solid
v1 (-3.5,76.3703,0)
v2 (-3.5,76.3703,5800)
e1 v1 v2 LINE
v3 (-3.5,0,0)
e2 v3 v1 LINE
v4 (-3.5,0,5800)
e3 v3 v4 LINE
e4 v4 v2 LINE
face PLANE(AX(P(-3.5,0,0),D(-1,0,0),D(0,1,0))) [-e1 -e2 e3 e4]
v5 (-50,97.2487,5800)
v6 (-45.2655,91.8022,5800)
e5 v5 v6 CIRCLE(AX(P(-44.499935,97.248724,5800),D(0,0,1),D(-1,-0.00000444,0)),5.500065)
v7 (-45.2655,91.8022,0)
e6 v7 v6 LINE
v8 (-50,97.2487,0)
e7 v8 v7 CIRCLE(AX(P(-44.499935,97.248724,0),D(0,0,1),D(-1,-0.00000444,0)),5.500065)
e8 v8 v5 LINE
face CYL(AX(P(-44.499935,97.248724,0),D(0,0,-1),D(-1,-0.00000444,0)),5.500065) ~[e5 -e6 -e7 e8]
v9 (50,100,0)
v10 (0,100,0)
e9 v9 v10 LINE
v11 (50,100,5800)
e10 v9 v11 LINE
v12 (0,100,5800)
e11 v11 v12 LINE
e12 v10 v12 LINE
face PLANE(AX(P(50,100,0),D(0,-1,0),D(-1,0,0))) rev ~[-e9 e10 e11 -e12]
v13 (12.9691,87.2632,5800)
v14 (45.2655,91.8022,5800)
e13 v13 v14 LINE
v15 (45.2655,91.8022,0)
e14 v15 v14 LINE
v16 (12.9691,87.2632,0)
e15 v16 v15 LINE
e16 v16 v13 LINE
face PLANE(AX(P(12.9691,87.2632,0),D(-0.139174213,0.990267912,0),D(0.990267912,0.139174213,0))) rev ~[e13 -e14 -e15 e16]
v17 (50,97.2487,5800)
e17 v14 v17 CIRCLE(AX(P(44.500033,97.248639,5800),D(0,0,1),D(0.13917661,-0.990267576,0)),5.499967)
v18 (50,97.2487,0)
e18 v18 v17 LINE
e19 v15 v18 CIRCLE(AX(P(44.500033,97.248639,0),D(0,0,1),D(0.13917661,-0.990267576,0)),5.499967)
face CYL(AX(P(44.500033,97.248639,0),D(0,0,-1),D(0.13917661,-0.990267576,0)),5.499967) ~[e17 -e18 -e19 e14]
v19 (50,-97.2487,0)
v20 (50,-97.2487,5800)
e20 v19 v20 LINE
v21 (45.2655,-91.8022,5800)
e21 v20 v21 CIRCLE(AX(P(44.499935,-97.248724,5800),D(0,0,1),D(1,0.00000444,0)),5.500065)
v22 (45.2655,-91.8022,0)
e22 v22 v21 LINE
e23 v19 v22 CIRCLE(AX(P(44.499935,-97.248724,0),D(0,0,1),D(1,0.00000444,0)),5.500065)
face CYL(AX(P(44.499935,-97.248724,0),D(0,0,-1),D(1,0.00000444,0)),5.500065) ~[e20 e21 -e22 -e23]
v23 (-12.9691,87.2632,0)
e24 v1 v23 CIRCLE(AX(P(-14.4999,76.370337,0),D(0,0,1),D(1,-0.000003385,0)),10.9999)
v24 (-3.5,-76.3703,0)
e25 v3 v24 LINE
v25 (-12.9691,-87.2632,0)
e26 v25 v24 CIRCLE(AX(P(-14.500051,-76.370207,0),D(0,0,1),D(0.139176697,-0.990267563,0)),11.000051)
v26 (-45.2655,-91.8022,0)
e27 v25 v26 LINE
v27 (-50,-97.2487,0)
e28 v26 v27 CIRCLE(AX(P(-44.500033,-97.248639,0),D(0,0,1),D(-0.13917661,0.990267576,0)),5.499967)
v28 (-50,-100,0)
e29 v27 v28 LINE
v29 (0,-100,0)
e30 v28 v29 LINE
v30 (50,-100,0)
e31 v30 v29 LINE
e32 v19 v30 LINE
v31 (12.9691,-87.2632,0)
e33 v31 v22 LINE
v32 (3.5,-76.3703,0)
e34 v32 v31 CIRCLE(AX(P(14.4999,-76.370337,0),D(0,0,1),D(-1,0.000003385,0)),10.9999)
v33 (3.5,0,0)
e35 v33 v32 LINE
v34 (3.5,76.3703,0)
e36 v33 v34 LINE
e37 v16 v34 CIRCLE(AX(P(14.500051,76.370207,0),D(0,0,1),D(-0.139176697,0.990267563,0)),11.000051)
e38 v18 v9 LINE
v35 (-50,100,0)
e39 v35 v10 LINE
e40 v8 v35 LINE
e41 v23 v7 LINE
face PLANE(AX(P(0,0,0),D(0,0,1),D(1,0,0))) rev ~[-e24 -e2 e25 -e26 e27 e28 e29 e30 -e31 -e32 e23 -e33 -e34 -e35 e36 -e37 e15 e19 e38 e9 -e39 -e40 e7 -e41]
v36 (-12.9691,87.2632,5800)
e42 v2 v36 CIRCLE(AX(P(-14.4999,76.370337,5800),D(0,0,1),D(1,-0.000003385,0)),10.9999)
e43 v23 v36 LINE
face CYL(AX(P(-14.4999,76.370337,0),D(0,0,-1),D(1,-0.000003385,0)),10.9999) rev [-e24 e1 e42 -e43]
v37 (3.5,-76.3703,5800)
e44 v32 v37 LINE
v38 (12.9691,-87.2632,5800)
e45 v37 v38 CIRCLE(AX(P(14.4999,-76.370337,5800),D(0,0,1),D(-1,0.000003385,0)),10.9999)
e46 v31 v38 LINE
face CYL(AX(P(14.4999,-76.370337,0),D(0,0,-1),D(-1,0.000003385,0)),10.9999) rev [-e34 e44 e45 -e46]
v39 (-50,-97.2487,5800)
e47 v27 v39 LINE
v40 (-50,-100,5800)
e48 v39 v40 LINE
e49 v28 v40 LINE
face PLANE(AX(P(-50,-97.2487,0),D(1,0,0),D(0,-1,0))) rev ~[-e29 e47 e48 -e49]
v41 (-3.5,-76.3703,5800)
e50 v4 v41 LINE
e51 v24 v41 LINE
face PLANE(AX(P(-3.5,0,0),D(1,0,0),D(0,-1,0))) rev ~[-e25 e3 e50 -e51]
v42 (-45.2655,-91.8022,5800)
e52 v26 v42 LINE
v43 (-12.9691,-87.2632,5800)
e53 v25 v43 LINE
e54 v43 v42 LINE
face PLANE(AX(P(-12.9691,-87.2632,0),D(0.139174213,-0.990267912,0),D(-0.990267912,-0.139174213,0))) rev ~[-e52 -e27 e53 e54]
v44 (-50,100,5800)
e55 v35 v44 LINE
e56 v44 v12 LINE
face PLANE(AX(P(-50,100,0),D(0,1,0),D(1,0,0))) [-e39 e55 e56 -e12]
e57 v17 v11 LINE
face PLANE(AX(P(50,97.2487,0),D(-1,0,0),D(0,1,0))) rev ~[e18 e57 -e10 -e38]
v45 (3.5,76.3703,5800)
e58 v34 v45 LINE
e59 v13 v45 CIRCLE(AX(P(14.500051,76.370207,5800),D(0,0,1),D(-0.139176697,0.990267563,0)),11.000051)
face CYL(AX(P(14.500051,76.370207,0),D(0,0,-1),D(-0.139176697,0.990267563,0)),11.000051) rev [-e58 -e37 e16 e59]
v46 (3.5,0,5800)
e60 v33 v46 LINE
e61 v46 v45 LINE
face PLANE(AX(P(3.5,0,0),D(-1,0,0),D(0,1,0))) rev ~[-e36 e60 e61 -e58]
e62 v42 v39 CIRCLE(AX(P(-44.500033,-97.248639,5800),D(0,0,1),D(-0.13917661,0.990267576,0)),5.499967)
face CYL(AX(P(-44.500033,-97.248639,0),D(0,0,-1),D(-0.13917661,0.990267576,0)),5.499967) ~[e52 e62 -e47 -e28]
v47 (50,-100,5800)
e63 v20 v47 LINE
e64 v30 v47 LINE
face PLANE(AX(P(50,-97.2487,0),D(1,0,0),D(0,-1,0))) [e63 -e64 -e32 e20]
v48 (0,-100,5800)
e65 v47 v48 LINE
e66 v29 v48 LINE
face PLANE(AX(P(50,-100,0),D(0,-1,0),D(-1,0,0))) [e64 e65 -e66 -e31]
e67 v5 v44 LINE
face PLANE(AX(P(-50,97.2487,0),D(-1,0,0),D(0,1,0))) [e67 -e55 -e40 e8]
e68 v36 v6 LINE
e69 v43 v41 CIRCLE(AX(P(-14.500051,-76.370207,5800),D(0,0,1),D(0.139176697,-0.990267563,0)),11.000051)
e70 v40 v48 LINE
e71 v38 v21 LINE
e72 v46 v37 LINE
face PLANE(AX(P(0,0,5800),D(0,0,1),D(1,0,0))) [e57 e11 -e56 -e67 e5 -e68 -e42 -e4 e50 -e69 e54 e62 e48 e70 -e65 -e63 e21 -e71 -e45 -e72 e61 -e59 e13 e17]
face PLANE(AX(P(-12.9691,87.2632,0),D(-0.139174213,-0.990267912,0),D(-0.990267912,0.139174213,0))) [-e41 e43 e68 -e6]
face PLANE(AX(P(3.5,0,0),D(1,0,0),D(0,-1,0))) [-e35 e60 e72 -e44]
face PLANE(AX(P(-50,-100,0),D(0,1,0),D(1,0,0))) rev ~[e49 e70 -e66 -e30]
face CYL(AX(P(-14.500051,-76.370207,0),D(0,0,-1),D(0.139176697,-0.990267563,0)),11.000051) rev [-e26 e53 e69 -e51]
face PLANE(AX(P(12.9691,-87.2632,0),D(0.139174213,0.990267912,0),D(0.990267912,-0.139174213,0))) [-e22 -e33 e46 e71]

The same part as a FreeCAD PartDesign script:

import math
import FreeCAD as App
import Part
import Sketcher

V = App.Vector
Q = App.Units.Quantity

doc = App.newDocument("Part")
body = doc.addObject("PartDesign::Body", "Body")

# Sketch on XY plane
sketch1 = doc.addObject("Sketcher::SketchObject", "Sketch")
body.addObject(sketch1)
sketch1.AttachmentSupport = (doc.XY_Plane, [""])
sketch1.MapMode = "FlatFace"
sketch1.addGeometry(Part.LineSegment(V(-3.5, 76.3703, 0), V(-3.5, -76.3703, 0)), False)
sketch1.addGeometry(Part.ArcOfCircle(Part.Circle(V(-14.5, -76.3703, 0), V(0, 0, 1), 10.999951), math.radians(-81.999986), math.radians(0)), False)
sketch1.addGeometry(Part.LineSegment(V(-12.9691, -87.2632, 0), V(-45.2655, -91.8022, 0)), False)
sketch1.addGeometry(Part.ArcOfCircle(Part.Circle(V(-44.5, -97.2487, 0), V(0, 0, 1), 5.500032), math.radians(98.000457), math.radians(180)), False)
sketch1.addGeometry(Part.LineSegment(V(-50, -97.2487, 0), V(-50, -100, 0)), False)
sketch1.addGeometry(Part.LineSegment(V(-50, -100, 0), V(50, -100, 0)), False)
sketch1.addGeometry(Part.LineSegment(V(50, -100, 0), V(50, -97.2487, 0)), False)
sketch1.addGeometry(Part.ArcOfCircle(Part.Circle(V(44.5, -97.2487, 0), V(0, 0, 1), 5.5), math.radians(0), math.radians(81.999543)), False)
sketch1.addGeometry(Part.LineSegment(V(45.2655, -91.8022, 0), V(12.9691, -87.2632, 0)), False)
sketch1.addGeometry(Part.ArcOfCircle(Part.Circle(V(14.5, -76.3703, 0), V(0, 0, 1), 11), math.radians(180), math.radians(261.999986)), False)
sketch1.addGeometry(Part.LineSegment(V(3.5, -76.3703, 0), V(3.5, 76.3703, 0)), False)
sketch1.addGeometry(Part.ArcOfCircle(Part.Circle(V(14.5, 76.3703, 0), V(0, 0, 1), 10.999951), math.radians(98.000014), math.radians(180)), False)
sketch1.addGeometry(Part.LineSegment(V(12.9691, 87.2632, 0), V(45.2655, 91.8022, 0)), False)
sketch1.addGeometry(Part.ArcOfCircle(Part.Circle(V(44.5, 97.2487, 0), V(0, 0, 1), 5.500032), math.radians(-81.999543), math.radians(0)), False)
sketch1.addGeometry(Part.LineSegment(V(50, 97.2487, 0), V(50, 100, 0)), False)
sketch1.addGeometry(Part.LineSegment(V(50, 100, 0), V(-50, 100, 0)), False)
sketch1.addGeometry(Part.LineSegment(V(-50, 100, 0), V(-50, 97.2487, 0)), False)
sketch1.addGeometry(Part.ArcOfCircle(Part.Circle(V(-44.5, 97.2487, 0), V(0, 0, 1), 5.5), math.radians(180), math.radians(261.999543)), False)
sketch1.addGeometry(Part.LineSegment(V(-45.2655, 91.8022, 0), V(-12.9691, 87.2632, 0)), False)
sketch1.addGeometry(Part.ArcOfCircle(Part.Circle(V(-14.5, 76.3703, 0), V(0, 0, 1), 11), math.radians(0), math.radians(81.999986)), False)
sketch1.addConstraint(Sketcher.Constraint("Tangent", 0, 2, 1, 2))
sketch1.addConstraint(Sketcher.Constraint("Tangent", 1, 1, 2, 1))
sketch1.addConstraint(Sketcher.Constraint("Tangent", 2, 2, 3, 1))
sketch1.addConstraint(Sketcher.Constraint("Tangent", 3, 2, 4, 1))
sketch1.addConstraint(Sketcher.Constraint("Coincident", 4, 2, 5, 1))
sketch1.addConstraint(Sketcher.Constraint("Coincident", 5, 2, 6, 1))
sketch1.addConstraint(Sketcher.Constraint("Tangent", 6, 2, 7, 1))
sketch1.addConstraint(Sketcher.Constraint("Tangent", 7, 2, 8, 1))
sketch1.addConstraint(Sketcher.Constraint("Tangent", 8, 2, 9, 2))
sketch1.addConstraint(Sketcher.Constraint("Tangent", 9, 1, 10, 1))
sketch1.addConstraint(Sketcher.Constraint("Tangent", 10, 2, 11, 2))
sketch1.addConstraint(Sketcher.Constraint("Tangent", 11, 1, 12, 1))
sketch1.addConstraint(Sketcher.Constraint("Tangent", 12, 2, 13, 1))
sketch1.addConstraint(Sketcher.Constraint("Tangent", 13, 2, 14, 1))
sketch1.addConstraint(Sketcher.Constraint("Coincident", 14, 2, 15, 1))
sketch1.addConstraint(Sketcher.Constraint("Coincident", 15, 2, 16, 1))
sketch1.addConstraint(Sketcher.Constraint("Tangent", 16, 2, 17, 1))
sketch1.addConstraint(Sketcher.Constraint("Tangent", 17, 2, 18, 1))
sketch1.addConstraint(Sketcher.Constraint("Tangent", 18, 2, 19, 2))
sketch1.addConstraint(Sketcher.Constraint("Tangent", 19, 1, 0, 1))
sketch1.addConstraint(Sketcher.Constraint("Vertical", 0))
sketch1.addConstraint(Sketcher.Constraint("Vertical", 4))
sketch1.addConstraint(Sketcher.Constraint("Horizontal", 5))
sketch1.addConstraint(Sketcher.Constraint("Vertical", 6))
sketch1.addConstraint(Sketcher.Constraint("Vertical", 10))
sketch1.addConstraint(Sketcher.Constraint("Vertical", 14))
sketch1.addConstraint(Sketcher.Constraint("Horizontal", 15))
sketch1.addConstraint(Sketcher.Constraint("Vertical", 16))
sketch1.addConstraint(Sketcher.Constraint("Equal", 3, 7))
sketch1.addConstraint(Sketcher.Constraint("Equal", 1, 9))
sketch1.addConstraint(Sketcher.Constraint("Equal", 9, 11))
sketch1.addConstraint(Sketcher.Constraint("Equal", 7, 13))
sketch1.addConstraint(Sketcher.Constraint("Equal", 13, 17))
sketch1.addConstraint(Sketcher.Constraint("Equal", 11, 19))
sketch1.addConstraint(Sketcher.Constraint("Symmetric", 1, 3, 11, 3, -1, 1))
sketch1.addConstraint(Sketcher.Constraint("Symmetric", 3, 3, 13, 3, -1, 1))
sketch1.addConstraint(Sketcher.Constraint("Symmetric", 7, 3, 17, 3, -1, 1))
sketch1.addConstraint(Sketcher.Constraint("Symmetric", 3, 3, 7, 3, -2))
sketch1.addConstraint(Sketcher.Constraint("Parallel", 8, 18))
sketch1.addConstraint(Sketcher.Constraint("Horizontal", 1, 3, 9, 3))
sketch1.addConstraint(Sketcher.Constraint("Equal", 6, 14))
sketch1.addConstraint(Sketcher.Constraint("Radius", 1, Q("11 mm")))
sketch1.addConstraint(Sketcher.Constraint("Radius", 3, Q("5.5 mm")))
sketch1.addConstraint(Sketcher.Constraint("DistanceX", 5, 1, 5, 2, Q("100 mm")))
sketch1.addConstraint(Sketcher.Constraint("DistanceY", 4, 2, -1, 1, Q("100 mm")))
sketch1.addConstraint(Sketcher.Constraint("DistanceX", 0, 2, -1, 1, Q("3.5 mm")))
sketch1.addConstraint(Sketcher.Constraint("Angle", 2, Q("-172 deg")))
sketch1.addConstraint(Sketcher.Constraint("DistanceY", 0, 2, 0, 1, Q("152.7406 mm")))
pad1 = doc.addObject("PartDesign::Pad", "Pad")
body.addObject(pad1)
pad1.Profile = sketch1
pad1.Length = 5800

doc.recompute()
